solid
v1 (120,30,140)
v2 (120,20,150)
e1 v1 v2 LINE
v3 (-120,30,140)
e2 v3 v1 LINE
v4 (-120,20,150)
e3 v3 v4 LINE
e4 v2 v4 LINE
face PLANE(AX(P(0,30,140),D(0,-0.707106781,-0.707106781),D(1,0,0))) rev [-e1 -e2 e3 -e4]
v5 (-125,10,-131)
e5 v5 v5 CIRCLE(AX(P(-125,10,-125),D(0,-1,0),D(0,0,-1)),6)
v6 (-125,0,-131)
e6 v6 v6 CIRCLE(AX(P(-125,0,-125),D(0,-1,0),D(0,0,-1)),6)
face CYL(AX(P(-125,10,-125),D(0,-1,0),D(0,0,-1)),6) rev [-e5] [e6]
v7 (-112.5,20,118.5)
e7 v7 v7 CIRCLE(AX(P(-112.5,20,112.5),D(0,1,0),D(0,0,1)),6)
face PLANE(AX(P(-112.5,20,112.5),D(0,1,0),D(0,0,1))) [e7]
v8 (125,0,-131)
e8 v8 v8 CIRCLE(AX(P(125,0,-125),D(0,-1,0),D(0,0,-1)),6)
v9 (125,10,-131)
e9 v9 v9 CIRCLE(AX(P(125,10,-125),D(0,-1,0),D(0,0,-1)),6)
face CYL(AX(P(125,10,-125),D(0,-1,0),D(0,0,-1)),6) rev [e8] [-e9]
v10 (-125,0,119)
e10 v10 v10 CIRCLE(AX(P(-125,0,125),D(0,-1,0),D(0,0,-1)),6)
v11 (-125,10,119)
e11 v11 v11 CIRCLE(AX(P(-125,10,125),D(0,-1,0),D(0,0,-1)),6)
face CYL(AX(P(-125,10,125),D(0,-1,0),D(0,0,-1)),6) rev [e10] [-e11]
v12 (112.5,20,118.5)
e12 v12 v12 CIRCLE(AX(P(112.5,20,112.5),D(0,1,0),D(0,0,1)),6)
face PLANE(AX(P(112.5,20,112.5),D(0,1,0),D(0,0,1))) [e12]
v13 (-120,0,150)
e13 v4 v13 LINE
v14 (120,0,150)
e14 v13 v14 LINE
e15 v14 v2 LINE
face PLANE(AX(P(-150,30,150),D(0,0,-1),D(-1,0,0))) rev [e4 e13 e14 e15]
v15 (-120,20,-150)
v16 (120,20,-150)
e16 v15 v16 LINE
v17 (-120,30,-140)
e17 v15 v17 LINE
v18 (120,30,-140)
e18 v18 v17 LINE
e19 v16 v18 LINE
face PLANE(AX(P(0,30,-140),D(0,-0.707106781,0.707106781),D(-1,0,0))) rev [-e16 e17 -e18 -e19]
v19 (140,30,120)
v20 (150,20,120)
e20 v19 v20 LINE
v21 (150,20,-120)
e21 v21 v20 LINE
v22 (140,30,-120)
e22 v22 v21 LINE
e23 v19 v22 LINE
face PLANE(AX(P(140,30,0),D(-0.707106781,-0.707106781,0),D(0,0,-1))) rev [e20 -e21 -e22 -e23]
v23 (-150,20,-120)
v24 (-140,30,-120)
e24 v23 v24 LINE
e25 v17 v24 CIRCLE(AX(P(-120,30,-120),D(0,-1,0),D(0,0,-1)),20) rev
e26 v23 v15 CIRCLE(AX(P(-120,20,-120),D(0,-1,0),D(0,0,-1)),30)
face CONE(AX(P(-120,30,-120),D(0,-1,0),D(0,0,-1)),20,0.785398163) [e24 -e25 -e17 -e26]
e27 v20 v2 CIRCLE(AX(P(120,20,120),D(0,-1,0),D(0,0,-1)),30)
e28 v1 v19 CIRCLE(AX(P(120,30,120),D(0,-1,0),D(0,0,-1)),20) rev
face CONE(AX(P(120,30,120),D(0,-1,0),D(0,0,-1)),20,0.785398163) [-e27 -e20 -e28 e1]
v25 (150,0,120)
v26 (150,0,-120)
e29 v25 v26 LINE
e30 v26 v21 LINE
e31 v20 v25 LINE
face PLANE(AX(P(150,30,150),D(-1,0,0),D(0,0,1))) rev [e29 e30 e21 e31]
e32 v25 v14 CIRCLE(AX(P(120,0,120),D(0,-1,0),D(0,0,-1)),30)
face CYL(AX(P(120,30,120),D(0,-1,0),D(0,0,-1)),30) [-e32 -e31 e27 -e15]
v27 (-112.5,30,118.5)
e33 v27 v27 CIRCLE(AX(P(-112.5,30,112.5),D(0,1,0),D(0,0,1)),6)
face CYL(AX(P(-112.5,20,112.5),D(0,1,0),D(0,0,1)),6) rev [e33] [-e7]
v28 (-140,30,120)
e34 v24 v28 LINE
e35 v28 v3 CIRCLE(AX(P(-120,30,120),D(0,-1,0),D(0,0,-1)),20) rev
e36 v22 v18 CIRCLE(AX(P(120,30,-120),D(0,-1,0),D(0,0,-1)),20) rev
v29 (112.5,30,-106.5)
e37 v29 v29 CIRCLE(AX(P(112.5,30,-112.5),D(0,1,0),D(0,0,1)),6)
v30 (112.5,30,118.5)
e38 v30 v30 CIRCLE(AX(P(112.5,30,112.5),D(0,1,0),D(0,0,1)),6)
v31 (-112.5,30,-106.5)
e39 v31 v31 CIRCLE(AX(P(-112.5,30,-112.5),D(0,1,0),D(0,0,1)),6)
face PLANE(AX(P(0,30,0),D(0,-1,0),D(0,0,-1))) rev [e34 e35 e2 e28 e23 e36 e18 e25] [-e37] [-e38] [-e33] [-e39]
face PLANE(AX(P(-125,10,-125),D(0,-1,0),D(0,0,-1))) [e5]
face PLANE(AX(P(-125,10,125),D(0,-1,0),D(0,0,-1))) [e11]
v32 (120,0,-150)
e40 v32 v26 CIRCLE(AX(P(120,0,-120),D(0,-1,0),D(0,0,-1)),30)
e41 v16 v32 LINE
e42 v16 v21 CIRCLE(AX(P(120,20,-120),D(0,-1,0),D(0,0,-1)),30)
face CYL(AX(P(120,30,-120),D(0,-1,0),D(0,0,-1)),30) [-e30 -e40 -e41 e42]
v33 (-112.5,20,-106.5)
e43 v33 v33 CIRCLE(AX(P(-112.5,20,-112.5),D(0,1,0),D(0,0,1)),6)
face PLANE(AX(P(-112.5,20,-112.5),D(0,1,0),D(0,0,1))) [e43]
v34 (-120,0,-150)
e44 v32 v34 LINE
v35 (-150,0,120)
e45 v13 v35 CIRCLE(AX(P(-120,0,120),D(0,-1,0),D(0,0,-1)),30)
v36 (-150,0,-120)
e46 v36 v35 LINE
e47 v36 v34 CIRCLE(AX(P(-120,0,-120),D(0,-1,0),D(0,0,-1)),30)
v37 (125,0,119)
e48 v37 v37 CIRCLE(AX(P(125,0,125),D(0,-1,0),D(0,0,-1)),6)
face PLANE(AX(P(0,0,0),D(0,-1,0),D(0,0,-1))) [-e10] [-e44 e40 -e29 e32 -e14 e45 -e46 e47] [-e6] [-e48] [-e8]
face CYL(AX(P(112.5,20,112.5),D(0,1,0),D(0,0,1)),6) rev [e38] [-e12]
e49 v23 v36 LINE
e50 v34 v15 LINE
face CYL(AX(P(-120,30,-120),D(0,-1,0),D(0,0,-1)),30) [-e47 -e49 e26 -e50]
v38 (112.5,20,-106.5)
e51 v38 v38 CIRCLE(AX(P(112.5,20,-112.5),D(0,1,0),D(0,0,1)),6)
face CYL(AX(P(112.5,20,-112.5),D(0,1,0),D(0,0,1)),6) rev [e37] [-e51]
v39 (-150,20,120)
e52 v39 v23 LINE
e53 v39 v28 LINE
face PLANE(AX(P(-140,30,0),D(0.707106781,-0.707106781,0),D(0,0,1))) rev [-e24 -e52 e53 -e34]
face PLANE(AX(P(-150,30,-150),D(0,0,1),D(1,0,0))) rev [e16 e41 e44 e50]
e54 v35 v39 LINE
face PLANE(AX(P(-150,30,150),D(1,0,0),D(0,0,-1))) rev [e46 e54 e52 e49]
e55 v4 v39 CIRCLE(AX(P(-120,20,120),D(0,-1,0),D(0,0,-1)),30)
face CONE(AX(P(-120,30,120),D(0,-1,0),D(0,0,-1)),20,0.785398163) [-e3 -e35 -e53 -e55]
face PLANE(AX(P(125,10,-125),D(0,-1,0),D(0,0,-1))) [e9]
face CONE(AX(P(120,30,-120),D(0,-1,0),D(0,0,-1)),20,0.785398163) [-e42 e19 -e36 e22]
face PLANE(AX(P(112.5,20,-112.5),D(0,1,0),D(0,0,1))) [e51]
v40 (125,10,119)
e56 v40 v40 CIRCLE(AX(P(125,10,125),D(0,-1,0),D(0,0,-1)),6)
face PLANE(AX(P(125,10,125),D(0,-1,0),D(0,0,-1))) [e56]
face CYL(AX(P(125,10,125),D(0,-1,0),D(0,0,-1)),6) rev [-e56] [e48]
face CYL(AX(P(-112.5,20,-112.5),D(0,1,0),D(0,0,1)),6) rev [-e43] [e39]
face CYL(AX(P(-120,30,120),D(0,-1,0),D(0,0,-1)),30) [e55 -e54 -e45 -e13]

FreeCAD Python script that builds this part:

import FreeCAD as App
import Part
import Sketcher
from FreeCAD import Vector


def edges_at(feature, points):
    """Names of the edges that pass closest to the given points."""
    edges = feature.Shape.Edges
    near = lambda p: min(range(len(edges)), key=lambda i: edges[i].distToShape(Part.Vertex(*p))[0])
    return sorted({f"Edge{near(p) + 1}" for p in points})

doc = App.newDocument("Part")
body = doc.addObject("PartDesign::Body", "Body")

sketch1 = body.newObject("Sketcher::SketchObject", "Sketch")
sketch1.AttachmentSupport = (doc.getObject("XZ_Plane"), [""])
sketch1.MapMode = "FlatFace"
sketch1.addGeometry([
    Part.LineSegment(Vector(-150, -150, 0), Vector(-150, 150, 0)),
    Part.LineSegment(Vector(-150, 150, 0), Vector(150, 150, 0)),
    Part.LineSegment(Vector(150, 150, 0), Vector(150, -150, 0)),
    Part.LineSegment(Vector(150, -150, 0), Vector(-150, -150, 0)),
], False)
sketch1.addConstraint([
    Sketcher.Constraint("Coincident", 0, 2, 1, 1),
    Sketcher.Constraint("Coincident", 1, 2, 2, 1),
    Sketcher.Constraint("Coincident", 2, 2, 3, 1),
    Sketcher.Constraint("Coincident", 3, 2, 0, 1),
    Sketcher.Constraint("Vertical", 0),
    Sketcher.Constraint("Horizontal", 1),
    Sketcher.Constraint("Vertical", 2),
    Sketcher.Constraint("Horizontal", 3),
    Sketcher.Constraint("Symmetric", 0, 2, 2, 2, -1, 1),
    Sketcher.Constraint("Equal", 3, 0),
    Sketcher.Constraint("DistanceX", 1, 1, 1, 2, 300.0),
])
pad1 = body.newObject("PartDesign::Pad", "Pad")
pad1.Profile = sketch1
pad1.Length = 30
pad1.Reversed = True
doc.recompute()

fillet = body.newObject("PartDesign::Fillet", "Fillet")
fillet.Base = (pad1, edges_at(pad1, [
    (150, 15, 150),
    (-150, 15, 150),
    (-150, 15, -150),
    (150, 15, -150),
]))
fillet.Radius = 30
doc.recompute()

chamfer = body.newObject("PartDesign::Chamfer", "Chamfer")
chamfer.Base = (fillet, edges_at(fillet, [
    (-150, 30, 0),
    (0, 30, -150),
    (150, 30, 0),
    (0, 30, 150),
    (-141.213, 30, 141.213),
    (141.213, 30, 141.213),
    (141.213, 30, -141.213),
    (-141.213, 30, -141.213),
]))
chamfer.Size = 10

sketch2 = body.newObject("Sketcher::SketchObject", "Sketch001")
sketch2.AttachmentSupport = (doc.getObject("XZ_Plane"), [""])
sketch2.MapMode = "FlatFace"
sketch2.addGeometry([
    Part.Circle(Vector(125, -125, 0), Vector(0, 0, 1), 6),
    Part.Circle(Vector(125, 125, 0), Vector(0, 0, 1), 6),
    Part.Circle(Vector(-125, 125, 0), Vector(0, 0, 1), 6),
    Part.Circle(Vector(-125, -125, 0), Vector(0, 0, 1), 6),
], False)
sketch2.addConstraint([
    Sketcher.Constraint("Equal", 0, 1),
    Sketcher.Constraint("Equal", 1, 2),
    Sketcher.Constraint("Equal", 2, 3),
    Sketcher.Constraint("Symmetric", 0, 3, 2, 3, -1, 1),
    Sketcher.Constraint("Symmetric", 1, 3, 3, 3, -1, 1),
    Sketcher.Constraint("Symmetric", 1, 3, 2, 3, -2),
    Sketcher.Constraint("Diameter", 0, 12.0),
    Sketcher.Constraint("DistanceX", -1, 1, 0, 3, 125.0),
    Sketcher.Constraint("DistanceY", 0, 3, -1, 1, 125.0),
])
pocket1 = body.newObject("PartDesign::Pocket", "Pocket")
pocket1.Profile = sketch2
pocket1.Length = 10

sketch3 = body.newObject("Sketcher::SketchObject", "Sketch002")
sketch3.AttachmentSupport = (doc.getObject("XZ_Plane"), [""])
sketch3.MapMode = "FlatFace"
sketch3.AttachmentOffset = App.Placement(Vector(0, 0, -30), App.Rotation())
sketch3.addGeometry([
    Part.Circle(Vector(112.5, 112.5, 0), Vector(0, 0, 1), 6),
    Part.Circle(Vector(112.5, -112.5, 0), Vector(0, 0, 1), 6),
    Part.Circle(Vector(-112.5, -112.5, 0), Vector(0, 0, 1), 6),
    Part.Circle(Vector(-112.5, 112.5, 0), Vector(0, 0, 1), 6),
], False)
sketch3.addConstraint([
    Sketcher.Constraint("Equal", 0, 1),
    Sketcher.Constraint("Equal", 1, 2),
    Sketcher.Constraint("Equal", 2, 3),
    Sketcher.Constraint("Symmetric", 0, 3, 2, 3, -1, 1),
    Sketcher.Constraint("Symmetric", 1, 3, 3, 3, -1, 1),
    Sketcher.Constraint("Symmetric", 1, 3, 2, 3, -2),
    Sketcher.Constraint("Diameter", 0, 12.0),
    Sketcher.Constraint("DistanceY", 1, 3, 0, 3, 225.0),
    Sketcher.Constraint("DistanceX", 2, 3, 1, 3, 225.0),
])
pocket2 = body.newObject("PartDesign::Pocket", "Pocket001")
pocket2.Profile = sketch3
pocket2.Length = 10
pocket2.Reversed = True

doc.recompute()
